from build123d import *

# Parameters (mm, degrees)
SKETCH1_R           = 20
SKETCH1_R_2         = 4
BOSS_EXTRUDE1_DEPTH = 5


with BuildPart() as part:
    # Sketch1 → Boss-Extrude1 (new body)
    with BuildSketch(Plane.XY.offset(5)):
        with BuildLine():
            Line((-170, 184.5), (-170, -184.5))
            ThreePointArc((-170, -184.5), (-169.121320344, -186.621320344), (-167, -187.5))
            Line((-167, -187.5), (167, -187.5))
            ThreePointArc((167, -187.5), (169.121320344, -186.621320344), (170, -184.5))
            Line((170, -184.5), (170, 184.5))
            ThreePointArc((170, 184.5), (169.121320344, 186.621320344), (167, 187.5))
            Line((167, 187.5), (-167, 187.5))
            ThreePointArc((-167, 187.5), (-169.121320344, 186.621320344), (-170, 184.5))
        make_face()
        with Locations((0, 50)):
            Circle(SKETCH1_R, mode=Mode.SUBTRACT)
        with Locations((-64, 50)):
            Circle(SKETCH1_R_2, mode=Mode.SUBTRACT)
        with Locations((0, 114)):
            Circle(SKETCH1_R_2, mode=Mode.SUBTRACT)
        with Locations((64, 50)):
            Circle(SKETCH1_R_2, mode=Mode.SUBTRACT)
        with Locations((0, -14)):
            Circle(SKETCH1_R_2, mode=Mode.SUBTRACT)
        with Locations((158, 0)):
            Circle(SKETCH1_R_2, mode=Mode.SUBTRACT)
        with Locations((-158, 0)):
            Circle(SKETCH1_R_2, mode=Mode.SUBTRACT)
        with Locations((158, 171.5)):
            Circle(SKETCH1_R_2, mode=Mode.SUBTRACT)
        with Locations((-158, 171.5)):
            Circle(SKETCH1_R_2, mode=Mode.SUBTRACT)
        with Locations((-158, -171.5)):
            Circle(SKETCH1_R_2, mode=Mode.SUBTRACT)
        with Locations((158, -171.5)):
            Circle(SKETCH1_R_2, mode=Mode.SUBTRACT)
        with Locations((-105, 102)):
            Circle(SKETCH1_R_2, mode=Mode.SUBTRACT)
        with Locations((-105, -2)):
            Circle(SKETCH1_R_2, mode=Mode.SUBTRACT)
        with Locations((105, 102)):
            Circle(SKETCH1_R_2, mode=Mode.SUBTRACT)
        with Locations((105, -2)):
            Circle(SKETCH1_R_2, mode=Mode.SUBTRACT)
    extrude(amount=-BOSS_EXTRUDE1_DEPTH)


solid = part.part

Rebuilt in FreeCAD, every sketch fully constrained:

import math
import FreeCAD as App
import Part
import Sketcher

V = App.Vector
Q = App.Units.Quantity

doc = App.newDocument("Part")
body = doc.addObject("PartDesign::Body", "Body")

# Sketch on XY plane
sketch1 = doc.addObject("Sketcher::SketchObject", "Sketch")
body.addObject(sketch1)
sketch1.AttachmentSupport = (doc.XY_Plane, [""])
sketch1.MapMode = "FlatFace"
sketch1.AttachmentOffset = App.Placement(V(0, 0, 5), App.Rotation())
sketch1.addGeometry([
    Part.LineSegment(V(-170, 184.5, 0), V(-170, -184.5, 0)),  # 0
    Part.ArcOfCircle(Part.Circle(V(-167, -184.5, 0), V(0, 0, 1), 3), math.radians(180), math.radians(270)),  # 1
    Part.LineSegment(V(-167, -187.5, 0), V(167, -187.5, 0)),  # 2
    Part.ArcOfCircle(Part.Circle(V(167, -184.5, 0), V(0, 0, 1), 3), math.radians(-90), math.radians(0)),  # 3
    Part.LineSegment(V(170, -184.5, 0), V(170, 184.5, 0)),  # 4
    Part.ArcOfCircle(Part.Circle(V(167, 184.5, 0), V(0, 0, 1), 3), math.radians(0), math.radians(90)),  # 5
    Part.LineSegment(V(167, 187.5, 0), V(-167, 187.5, 0)),  # 6
    Part.ArcOfCircle(Part.Circle(V(-167, 184.5, 0), V(0, 0, 1), 3), math.radians(90), math.radians(180)),  # 7
    Part.Circle(V(-158, -171.5, 0), V(0, 0, 1), 4),  # 8
    Part.Circle(V(-105, -2, 0), V(0, 0, 1), 4),  # 9
    Part.Circle(V(158, -171.5, 0), V(0, 0, 1), 4),  # 10
    Part.Circle(V(0, -14, 0), V(0, 0, 1), 4),  # 11
    Part.Circle(V(105, -2, 0), V(0, 0, 1), 4),  # 12
    Part.Circle(V(-158, 0, 0), V(0, 0, 1), 4),  # 13
    Part.Circle(V(-64, 50, 0), V(0, 0, 1), 4),  # 14
    Part.Circle(V(-105, 102, 0), V(0, 0, 1), 4),  # 15
    Part.Circle(V(-158, 171.5, 0), V(0, 0, 1), 4),  # 16
    Part.Circle(V(0, 50, 0), V(0, 0, 1), 20),  # 17
    Part.Circle(V(64, 50, 0), V(0, 0, 1), 4),  # 18
    Part.Circle(V(158, 0, 0), V(0, 0, 1), 4),  # 19
    Part.Circle(V(0, 114, 0), V(0, 0, 1), 4),  # 20
    Part.Circle(V(105, 102, 0), V(0, 0, 1), 4),  # 21
    Part.Circle(V(158, 171.5, 0), V(0, 0, 1), 4),  # 22
], False)
sketch1.addConstraint([
    Sketcher.Constraint("Tangent", 0, 2, 1, 1),
    Sketcher.Constraint("Tangent", 1, 2, 2, 1),
    Sketcher.Constraint("Tangent", 2, 2, 3, 1),
    Sketcher.Constraint("Tangent", 3, 2, 4, 1),
    Sketcher.Constraint("Tangent", 4, 2, 5, 1),
    Sketcher.Constraint("Tangent", 5, 2, 6, 1),
    Sketcher.Constraint("Tangent", 6, 2, 7, 1),
    Sketcher.Constraint("Tangent", 7, 2, 0, 1),
    Sketcher.Constraint("Vertical", 0),
    Sketcher.Constraint("Horizontal", 2),
    Sketcher.Constraint("Vertical", 4),
    Sketcher.Constraint("Horizontal", 6),
    Sketcher.Constraint("Equal", 1, 3),
    Sketcher.Constraint("Equal", 3, 5),
    Sketcher.Constraint("Equal", 5, 7),
    Sketcher.Constraint("Equal", 8, 9),
    Sketcher.Constraint("Equal", 9, 10),
    Sketcher.Constraint("Equal", 10, 11),
    Sketcher.Constraint("Equal", 11, 12),
    Sketcher.Constraint("Equal", 12, 13),
    Sketcher.Constraint("Equal", 13, 14),
    Sketcher.Constraint("Equal", 14, 15),
    Sketcher.Constraint("Equal", 15, 16),
    Sketcher.Constraint("Equal", 16, 18),
    Sketcher.Constraint("Equal", 18, 19),
    Sketcher.Constraint("Equal", 19, 20),
    Sketcher.Constraint("Equal", 20, 21),
    Sketcher.Constraint("Equal", 21, 22),
    Sketcher.Constraint("Symmetric", 1, 3, 5, 3, -1, 1),
    Sketcher.Constraint("Symmetric", 10, 3, 16, 3, -1, 1),
    Sketcher.Constraint("Symmetric", 13, 3, 19, 3, -1, 1),
    Sketcher.Constraint("Symmetric", 8, 3, 22, 3, -1, 1),
    Sketcher.Constraint("Symmetric", 8, 3, 10, 3, -2),
    Sketcher.Constraint("Symmetric", 9, 3, 12, 3, -2),
    Sketcher.Constraint("Symmetric", 14, 3, 18, 3, -2),
    Sketcher.Constraint("Symmetric", 15, 3, 21, 3, -2),
    Sketcher.Constraint("PointOnObject", 11, 3, -2),
    Sketcher.Constraint("PointOnObject", 13, 3, -1),
    Sketcher.Constraint("PointOnObject", 17, 3, -2),
    Sketcher.Constraint("PointOnObject", 20, 3, -2),
    Sketcher.Constraint("Horizontal", 14, 3, 17, 3),
    Sketcher.Constraint("Vertical", 8, 3, 13, 3),
    Sketcher.Constraint("Vertical", 9, 3, 15, 3),
    Sketcher.Constraint("Diameter", 8, Q("8 mm")),
    Sketcher.Constraint("Diameter", 17, Q("40 mm")),
    Sketcher.Constraint("Radius", 1, Q("3 mm")),
    Sketcher.Constraint("DistanceX", 2, 1, 2, 2, Q("334 mm")),
    Sketcher.Constraint("DistanceY", 0, 2, 0, 1, Q("369 mm")),
    Sketcher.Constraint("DistanceX", 8, 3, -1, 1, Q("158 mm")),
    Sketcher.Constraint("DistanceX", 9, 3, -1, 1, Q("105 mm")),
    Sketcher.Constraint("DistanceY", 9, 3, -1, 1, Q("2 mm")),
    Sketcher.Constraint("DistanceY", 11, 3, -1, 1, Q("14 mm")),
    Sketcher.Constraint("DistanceX", 14, 3, -1, 1, Q("64 mm")),
    Sketcher.Constraint("DistanceY", -1, 1, 14, 3, Q("50 mm")),
    Sketcher.Constraint("DistanceY", -1, 1, 15, 3, Q("102 mm")),
    Sketcher.Constraint("DistanceY", -1, 1, 20, 3, Q("114 mm")),
    Sketcher.Constraint("DistanceY", 1, 3, 8, 3, Q("13 mm")),
])
pad1 = doc.addObject("PartDesign::Pad", "Pad")
body.addObject(pad1)
pad1.Profile = sketch1
pad1.Length = 5
pad1.Reversed = True

doc.recompute()
